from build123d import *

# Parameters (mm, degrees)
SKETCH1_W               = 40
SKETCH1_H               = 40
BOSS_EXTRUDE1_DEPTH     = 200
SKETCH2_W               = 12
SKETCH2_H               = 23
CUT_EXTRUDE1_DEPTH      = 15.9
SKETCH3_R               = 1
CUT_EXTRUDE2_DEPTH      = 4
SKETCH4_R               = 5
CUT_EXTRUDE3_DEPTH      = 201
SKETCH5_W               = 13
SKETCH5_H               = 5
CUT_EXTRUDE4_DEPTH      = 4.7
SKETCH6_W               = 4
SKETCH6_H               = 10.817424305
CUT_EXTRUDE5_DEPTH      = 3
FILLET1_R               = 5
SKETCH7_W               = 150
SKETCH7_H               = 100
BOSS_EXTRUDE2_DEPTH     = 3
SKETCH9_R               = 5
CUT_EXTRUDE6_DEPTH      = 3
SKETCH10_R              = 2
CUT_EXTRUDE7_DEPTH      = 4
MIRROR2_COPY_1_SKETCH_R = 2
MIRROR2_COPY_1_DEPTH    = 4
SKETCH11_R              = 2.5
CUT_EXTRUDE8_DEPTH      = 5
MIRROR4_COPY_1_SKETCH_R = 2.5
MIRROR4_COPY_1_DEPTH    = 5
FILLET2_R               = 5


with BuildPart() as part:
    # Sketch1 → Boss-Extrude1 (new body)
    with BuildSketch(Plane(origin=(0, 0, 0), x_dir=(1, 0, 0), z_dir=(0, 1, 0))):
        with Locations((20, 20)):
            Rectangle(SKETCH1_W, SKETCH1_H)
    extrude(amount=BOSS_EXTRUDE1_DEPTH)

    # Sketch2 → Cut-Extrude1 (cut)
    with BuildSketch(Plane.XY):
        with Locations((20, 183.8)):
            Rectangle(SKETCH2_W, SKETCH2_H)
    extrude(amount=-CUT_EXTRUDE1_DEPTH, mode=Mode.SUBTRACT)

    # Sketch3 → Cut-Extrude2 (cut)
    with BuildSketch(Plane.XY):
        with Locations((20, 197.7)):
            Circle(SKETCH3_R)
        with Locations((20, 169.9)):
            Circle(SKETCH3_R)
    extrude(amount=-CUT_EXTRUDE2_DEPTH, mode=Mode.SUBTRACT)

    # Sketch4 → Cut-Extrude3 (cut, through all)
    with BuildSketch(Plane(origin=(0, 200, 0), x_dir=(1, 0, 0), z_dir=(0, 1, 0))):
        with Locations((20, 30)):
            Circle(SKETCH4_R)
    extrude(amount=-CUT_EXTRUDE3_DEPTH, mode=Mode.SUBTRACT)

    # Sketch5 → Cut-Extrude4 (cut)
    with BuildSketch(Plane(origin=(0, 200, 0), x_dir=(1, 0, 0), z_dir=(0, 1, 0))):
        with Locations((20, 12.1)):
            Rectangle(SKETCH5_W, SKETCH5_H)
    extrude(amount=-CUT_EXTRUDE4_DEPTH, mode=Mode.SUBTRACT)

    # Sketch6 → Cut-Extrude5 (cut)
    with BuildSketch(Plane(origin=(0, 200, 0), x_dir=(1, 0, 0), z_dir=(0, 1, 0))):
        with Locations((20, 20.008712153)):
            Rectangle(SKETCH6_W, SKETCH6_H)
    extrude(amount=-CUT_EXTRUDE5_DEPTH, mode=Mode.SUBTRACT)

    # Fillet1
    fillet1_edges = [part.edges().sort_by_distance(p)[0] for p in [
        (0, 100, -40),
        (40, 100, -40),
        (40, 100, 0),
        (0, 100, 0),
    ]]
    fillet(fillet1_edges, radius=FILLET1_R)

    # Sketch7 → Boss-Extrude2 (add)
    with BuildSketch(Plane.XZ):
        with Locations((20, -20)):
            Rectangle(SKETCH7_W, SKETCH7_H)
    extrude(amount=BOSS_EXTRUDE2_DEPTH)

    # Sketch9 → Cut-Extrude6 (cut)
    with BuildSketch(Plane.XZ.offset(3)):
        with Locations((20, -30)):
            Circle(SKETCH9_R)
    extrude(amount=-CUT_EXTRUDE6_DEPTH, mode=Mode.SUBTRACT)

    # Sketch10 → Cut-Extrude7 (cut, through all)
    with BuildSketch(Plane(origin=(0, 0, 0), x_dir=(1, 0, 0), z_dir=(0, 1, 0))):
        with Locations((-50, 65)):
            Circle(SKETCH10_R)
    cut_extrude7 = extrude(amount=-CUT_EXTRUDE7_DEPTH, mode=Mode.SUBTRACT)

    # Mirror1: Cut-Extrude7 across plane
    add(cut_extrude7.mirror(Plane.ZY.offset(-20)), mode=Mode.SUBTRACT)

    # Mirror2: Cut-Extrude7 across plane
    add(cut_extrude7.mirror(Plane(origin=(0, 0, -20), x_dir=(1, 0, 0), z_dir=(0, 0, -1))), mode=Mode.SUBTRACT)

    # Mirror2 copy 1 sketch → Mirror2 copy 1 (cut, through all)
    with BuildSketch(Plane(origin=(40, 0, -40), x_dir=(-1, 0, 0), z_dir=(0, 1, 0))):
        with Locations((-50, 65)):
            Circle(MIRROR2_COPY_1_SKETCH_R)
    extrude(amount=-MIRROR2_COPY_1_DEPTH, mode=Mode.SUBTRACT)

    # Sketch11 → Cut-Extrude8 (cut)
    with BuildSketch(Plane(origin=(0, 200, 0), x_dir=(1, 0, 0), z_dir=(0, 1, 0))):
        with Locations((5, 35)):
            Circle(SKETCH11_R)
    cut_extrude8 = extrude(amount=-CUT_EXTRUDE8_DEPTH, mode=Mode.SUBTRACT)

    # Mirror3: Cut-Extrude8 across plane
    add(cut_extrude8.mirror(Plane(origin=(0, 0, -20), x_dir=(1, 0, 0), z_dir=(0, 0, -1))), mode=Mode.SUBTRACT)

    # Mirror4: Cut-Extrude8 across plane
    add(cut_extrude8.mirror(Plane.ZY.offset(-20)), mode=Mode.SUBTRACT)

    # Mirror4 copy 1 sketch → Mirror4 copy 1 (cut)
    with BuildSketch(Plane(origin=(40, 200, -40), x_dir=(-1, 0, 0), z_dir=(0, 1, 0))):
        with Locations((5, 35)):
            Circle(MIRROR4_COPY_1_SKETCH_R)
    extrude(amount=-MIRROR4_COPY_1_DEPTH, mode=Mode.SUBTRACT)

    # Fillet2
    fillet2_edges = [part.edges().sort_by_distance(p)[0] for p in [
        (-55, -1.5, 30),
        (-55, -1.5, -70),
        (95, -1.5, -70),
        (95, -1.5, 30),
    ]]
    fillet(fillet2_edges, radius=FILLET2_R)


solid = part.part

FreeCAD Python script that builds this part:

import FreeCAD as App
import Part
import Sketcher


def edges_at(feature, points):
    """Names of the edges that pass closest to the given points."""
    edges = feature.Shape.Edges
    near = lambda p: min(range(len(edges)), key=lambda i: edges[i].distToShape(Part.Vertex(*p))[0])
    return sorted({f"Edge{near(p) + 1}" for p in points})


def add_polygon(sketch, points):
    """Adds a closed chain of lines whose ends are joined by coincident constraints."""
    first, n = sketch.GeometryCount, len(points)
    for a, b in zip(points, points[1:] + points[:1]):
        sketch.addGeometry(Part.LineSegment(App.Vector(*a, 0), App.Vector(*b, 0)), False)
    for i in range(n):
        sketch.addConstraint(Sketcher.Constraint("Coincident", first + i, 2, first + (i + 1) % n, 1))

doc = App.newDocument("Part")
params = doc.addObject("Spreadsheet::Sheet", "Params")
for row, (alias, value) in enumerate([
    ("sketch1_width", "40 mm"),
    ("pad1_length", "200 mm"),
    ("sketch2_width", "12 mm"),
    ("sketch2_height", "23 mm"),
    ("pocket1_length", "15.9 mm"),
    ("sketch3_diameter", "2 mm"),
    ("pocket2_length", "4 mm"),
    ("sketch4_diameter", "10 mm"),
    ("sketch5_width", "13 mm"),
    ("sketch5_height", "5 mm"),
    ("pocket4_length", "4.7 mm"),
    ("sketch6_width", "4 mm"),
    ("pocket5_length", "3 mm"),
    ("fillet_radius", "5 mm"),
    ("sketch7_width", "150 mm"),
    ("sketch7_height", "100 mm"),
    ("pad2_length", "3 mm"),
    ("sketch8_diameter", "10 mm"),
    ("pocket6_length", "3 mm"),
    ("sketch9_diameter", "4 mm"),
    ("sketch10_diameter", "4 mm"),
    ("sketch11_diameter", "5 mm"),
    ("pocket9_length", "5 mm"),
    ("sketch12_diameter", "5 mm"),
    ("pocket10_length", "5 mm"),
    ("fillet2_radius", "5 mm"),
], start=1):
    params.set(f"A{row}", alias)
    params.set(f"B{row}", "=" + value)
    params.setAlias(f"B{row}", alias)

body = doc.addObject("PartDesign::Body", "Body")

# Sketch on XZ plane
sketch1 = body.newObject("Sketcher::SketchObject", "Sketch")
sketch1.AttachmentSupport = (doc.getObject("XZ_Plane"), [""])
sketch1.MapMode = "FlatFace"
add_polygon(sketch1, [(0, -40), (0, 0), (40, 0), (40, -40)])  # lines 0-3
sketch1.addConstraint([
    Sketcher.Constraint("Vertical", 0),
    Sketcher.Constraint("Horizontal", 1),
    Sketcher.Constraint("Vertical", 2),
    Sketcher.Constraint("Horizontal", 3),
    Sketcher.Constraint("Coincident", 0, 2, -1, 1),
    Sketcher.Constraint("Equal", 3, 0),
    Sketcher.Constraint("DistanceX", 1, 1, 1, 2, 40.0),
])
sketch1.setExpression("Constraints[10]", "Params.sketch1_width")
pad1 = body.newObject("PartDesign::Pad", "Pad")
pad1.Profile = sketch1
pad1.setExpression("Length", "Params.pad1_length")
pad1.Reversed = True

# Sketch on XY plane
sketch2 = body.newObject("Sketcher::SketchObject", "Sketch001")
sketch2.AttachmentSupport = (doc.getObject("XY_Plane"), [""])
sketch2.MapMode = "FlatFace"
add_polygon(sketch2, [(14, 195.3), (14, 172.3), (26, 172.3), (26, 195.3)])  # lines 0-3
sketch2.addConstraint([
    Sketcher.Constraint("Vertical", 0),
    Sketcher.Constraint("Horizontal", 1),
    Sketcher.Constraint("Vertical", 2),
    Sketcher.Constraint("Horizontal", 3),
    Sketcher.Constraint("DistanceX", 1, 1, 1, 2, 12.0),
    Sketcher.Constraint("DistanceY", 0, 2, 0, 1, 23.0),
    Sketcher.Constraint("DistanceX", -1, 1, 0, 2, 14.0),
    Sketcher.Constraint("DistanceY", -1, 1, 0, 2, 172.3),
])
sketch2.setExpression("Constraints[8]", "Params.sketch2_width")
sketch2.setExpression("Constraints[9]", "Params.sketch2_height")
pocket1 = body.newObject("PartDesign::Pocket", "Pocket")
pocket1.Profile = sketch2
pocket1.setExpression("Length", "Params.pocket1_length")

# Sketch on XY plane
sketch3 = body.newObject("Sketcher::SketchObject", "Sketch002")
sketch3.AttachmentSupport = (doc.getObject("XY_Plane"), [""])
sketch3.MapMode = "FlatFace"
sketch3.addGeometry([
    Part.Circle(App.Vector(20, 197.7, 0), App.Vector(0, 0, 1), 1),
    Part.Circle(App.Vector(20, 169.9, 0), App.Vector(0, 0, 1), 1),
], False)
sketch3.addConstraint([
    Sketcher.Constraint("Equal", 0, 1),
    Sketcher.Constraint("Vertical", 0, 3, 1, 3),
    Sketcher.Constraint("Diameter", 0, 2.0),
    Sketcher.Constraint("DistanceX", -1, 1, 0, 3, 20.0),
    Sketcher.Constraint("DistanceY", -1, 1, 0, 3, 197.7),
    Sketcher.Constraint("DistanceY", -1, 1, 1, 3, 169.9),
])
sketch3.setExpression("Constraints[2]", "Params.sketch3_diameter")
pocket2 = body.newObject("PartDesign::Pocket", "Pocket001")
pocket2.Profile = sketch3
pocket2.setExpression("Length", "Params.pocket2_length")

# Sketch on XZ plane
sketch4 = body.newObject("Sketcher::SketchObject", "Sketch003")
sketch4.AttachmentSupport = (doc.getObject("XZ_Plane"), [""])
sketch4.MapMode = "FlatFace"
sketch4.AttachmentOffset = App.Placement(App.Vector(0, 0, -200), App.Rotation())
sketch4.addGeometry(Part.Circle(App.Vector(20, -30, 0), App.Vector(0, 0, 1), 5), False)
sketch4.addConstraint([
    Sketcher.Constraint("Diameter", 0, 10.0),
    Sketcher.Constraint("DistanceX", -1, 1, 0, 3, 20.0),
    Sketcher.Constraint("DistanceY", 0, 3, -1, 1, 30.0),
])
sketch4.setExpression("Constraints[0]", "Params.sketch4_diameter")
pocket3 = body.newObject("PartDesign::Pocket", "Pocket002")
pocket3.Profile = sketch4
pocket3.Type = "ThroughAll"
pocket3.Reversed = True

# Sketch on XZ plane
sketch5 = body.newObject("Sketcher::SketchObject", "Sketch004")
sketch5.AttachmentSupport = (doc.getObject("XZ_Plane"), [""])
sketch5.MapMode = "FlatFace"
sketch5.AttachmentOffset = App.Placement(App.Vector(0, 0, -200), App.Rotation())
add_polygon(sketch5, [(13.5, -14.6), (13.5, -9.6), (26.5, -9.6), (26.5, -14.6)])  # lines 0-3
sketch5.addConstraint([
    Sketcher.Constraint("Vertical", 0),
    Sketcher.Constraint("Horizontal", 1),
    Sketcher.Constraint("Vertical", 2),
    Sketcher.Constraint("Horizontal", 3),
    Sketcher.Constraint("DistanceX", 1, 1, 1, 2, 13.0),
    Sketcher.Constraint("DistanceY", 0, 1, 0, 2, 5.0),
    Sketcher.Constraint("DistanceX", -1, 1, 0, 2, 13.5),
    Sketcher.Constraint("DistanceY", 0, 2, -1, 1, 9.6),
])
sketch5.setExpression("Constraints[8]", "Params.sketch5_width")
sketch5.setExpression("Constraints[9]", "Params.sketch5_height")
pocket4 = body.newObject("PartDesign::Pocket", "Pocket003")
pocket4.Profile = sketch5
pocket4.setExpression("Length", "Params.pocket4_length")
pocket4.Reversed = True

# Sketch on XZ plane
sketch6 = body.newObject("Sketcher::SketchObject", "Sketch005")
sketch6.AttachmentSupport = (doc.getObject("XZ_Plane"), [""])
sketch6.MapMode = "FlatFace"
sketch6.AttachmentOffset = App.Placement(App.Vector(0, 0, -200), App.Rotation())
add_polygon(sketch6, [(18, -25.417424), (18, -14.6), (22, -14.6), (22, -25.417424)])  # lines 0-3
sketch6.addConstraint([
    Sketcher.Constraint("Vertical", 0),
    Sketcher.Constraint("Horizontal", 1),
    Sketcher.Constraint("Vertical", 2),
    Sketcher.Constraint("Horizontal", 3),
    Sketcher.Constraint("DistanceX", 1, 1, 1, 2, 4.0),
    Sketcher.Constraint("DistanceX", -1, 1, 0, 2, 18.0),
    Sketcher.Constraint("DistanceY", 0, 2, -1, 1, 14.6),
    Sketcher.Constraint("DistanceY", 0, 1, 0, 2, 10.817424),
])
sketch6.setExpression("Constraints[8]", "Params.sketch6_width")
pocket5 = body.newObject("PartDesign::Pocket", "Pocket004")
pocket5.Profile = sketch6
pocket5.setExpression("Length", "Params.pocket5_length")
pocket5.Reversed = True
doc.recompute()

fillet = body.newObject("PartDesign::Fillet", "Fillet")
fillet.Base = (pocket5, edges_at(pocket5, [
    (0, 100, -40),
    (40, 100, -40),
    (40, 100, 0),
    (0, 100, 0),
]))
fillet.setExpression("Radius", "Params.fillet_radius")

# Sketch on XZ plane
sketch7 = body.newObject("Sketcher::SketchObject", "Sketch006")
sketch7.AttachmentSupport = (doc.getObject("XZ_Plane"), [""])
sketch7.MapMode = "FlatFace"
add_polygon(sketch7, [(-55, 30), (-55, -70), (95, -70), (95, 30)])  # lines 0-3
sketch7.addConstraint([
    Sketcher.Constraint("Vertical", 0),
    Sketcher.Constraint("Horizontal", 1),
    Sketcher.Constraint("Vertical", 2),
    Sketcher.Constraint("Horizontal", 3),
    Sketcher.Constraint("DistanceX", 1, 1, 1, 2, 150.0),
    Sketcher.Constraint("DistanceY", 0, 2, 0, 1, 100.0),
    Sketcher.Constraint("DistanceX", 0, 2, -1, 1, 55.0),
    Sketcher.Constraint("DistanceY", 0, 2, -1, 1, 70.0),
])
sketch7.setExpression("Constraints[8]", "Params.sketch7_width")
sketch7.setExpression("Constraints[9]", "Params.sketch7_height")
pad2 = body.newObject("PartDesign::Pad", "Pad001")
pad2.Profile = sketch7
pad2.setExpression("Length", "Params.pad2_length")

# Sketch on XZ plane
sketch8 = body.newObject("Sketcher::SketchObject", "Sketch007")
sketch8.AttachmentSupport = (doc.getObject("XZ_Plane"), [""])
sketch8.MapMode = "FlatFace"
sketch8.AttachmentOffset = App.Placement(App.Vector(0, 0, 3), App.Rotation())
sketch8.addGeometry(Part.Circle(App.Vector(20, -30, 0), App.Vector(0, 0, 1), 5), False)
sketch8.addConstraint([
    Sketcher.Constraint("Diameter", 0, 10.0),
    Sketcher.Constraint("DistanceX", -1, 1, 0, 3, 20.0),
    Sketcher.Constraint("DistanceY", 0, 3, -1, 1, 30.0),
])
sketch8.setExpression("Constraints[0]", "Params.sketch8_diameter")
pocket6 = body.newObject("PartDesign::Pocket", "Pocket005")
pocket6.Profile = sketch8
pocket6.setExpression("Length", "Params.pocket6_length")

# Sketch on XZ plane
sketch9 = body.newObject("Sketcher::SketchObject", "Sketch008")
sketch9.AttachmentSupport = (doc.getObject("XZ_Plane"), [""])
sketch9.MapMode = "FlatFace"
sketch9.addGeometry(Part.Circle(App.Vector(-50, -65, 0), App.Vector(0, 0, 1), 2), False)
sketch9.addConstraint([
    Sketcher.Constraint("Diameter", 0, 4.0),
    Sketcher.Constraint("DistanceX", 0, 3, -1, 1, 50.0),
    Sketcher.Constraint("DistanceY", 0, 3, -1, 1, 65.0),
])
sketch9.setExpression("Constraints[0]", "Params.sketch9_diameter")
pocket7 = body.newObject("PartDesign::Pocket", "Pocket006")
pocket7.Profile = sketch9
pocket7.Type = "ThroughAll"
pocket7.Reversed = True
doc.recompute()

datumplane = body.newObject("PartDesign::Plane", "DatumPlane")
datumplane.AttachmentSupport = (doc.getObject("YZ_Plane"), [""])
datumplane.MapMode = "FlatFace"
datumplane.AttachmentOffset = App.Placement(App.Vector(0, 0, 20), App.Rotation())
mirrored = body.newObject("PartDesign::Mirrored", "Mirrored")
mirrored.Originals = [pocket7]
mirrored.MirrorPlane = (datumplane, [""])
body.Tip = mirrored
doc.recompute()

datumplane2 = body.newObject("PartDesign::Plane", "DatumPlane001")
datumplane2.AttachmentSupport = (doc.getObject("XY_Plane"), [""])
datumplane2.MapMode = "FlatFace"
datumplane2.AttachmentOffset = App.Placement(App.Vector(0, 0, -20), App.Rotation())
mirrored2 = body.newObject("PartDesign::Mirrored", "Mirrored001")
mirrored2.Originals = [pocket7]
mirrored2.MirrorPlane = (datumplane2, [""])
body.Tip = mirrored2

# Sketch on XZ plane
sketch10 = body.newObject("Sketcher::SketchObject", "Sketch009")
sketch10.AttachmentSupport = (doc.getObject("XZ_Plane"), [""])
sketch10.MapMode = "FlatFace"
sketch10.addGeometry(Part.Circle(App.Vector(90, 25, 0), App.Vector(0, 0, 1), 2), False)
sketch10.addConstraint([
    Sketcher.Constraint("Diameter", 0, 4.0),
    Sketcher.Constraint("DistanceX", -1, 1, 0, 3, 90.0),
    Sketcher.Constraint("DistanceY", -1, 1, 0, 3, 25.0),
])
sketch10.setExpression("Constraints[0]", "Params.sketch10_diameter")
pocket8 = body.newObject("PartDesign::Pocket", "Pocket007")
pocket8.Profile = sketch10
pocket8.Type = "ThroughAll"
pocket8.Reversed = True

# Sketch on XZ plane
sketch11 = body.newObject("Sketcher::SketchObject", "Sketch010")
sketch11.AttachmentSupport = (doc.getObject("XZ_Plane"), [""])
sketch11.MapMode = "FlatFace"
sketch11.AttachmentOffset = App.Placement(App.Vector(0, 0, -200), App.Rotation())
sketch11.addGeometry(Part.Circle(App.Vector(5, -35, 0), App.Vector(0, 0, 1), 2.5), False)
sketch11.addConstraint([
    Sketcher.Constraint("Diameter", 0, 5.0),
    Sketcher.Constraint("DistanceX", -1, 1, 0, 3, 5.0),
    Sketcher.Constraint("DistanceY", 0, 3, -1, 1, 35.0),
])
sketch11.setExpression("Constraints[0]", "Params.sketch11_diameter")
pocket9 = body.newObject("PartDesign::Pocket", "Pocket008")
pocket9.Profile = sketch11
pocket9.setExpression("Length", "Params.pocket9_length")
pocket9.Reversed = True
doc.recompute()

datumplane3 = body.newObject("PartDesign::Plane", "DatumPlane002")
datumplane3.AttachmentSupport = (doc.getObject("XY_Plane"), [""])
datumplane3.MapMode = "FlatFace"
datumplane3.AttachmentOffset = App.Placement(App.Vector(0, 0, -20), App.Rotation())
mirrored3 = body.newObject("PartDesign::Mirrored", "Mirrored002")
mirrored3.Originals = [pocket9]
mirrored3.MirrorPlane = (datumplane3, [""])
body.Tip = mirrored3
doc.recompute()

datumplane4 = body.newObject("PartDesign::Plane", "DatumPlane003")
datumplane4.AttachmentSupport = (doc.getObject("YZ_Plane"), [""])
datumplane4.MapMode = "FlatFace"
datumplane4.AttachmentOffset = App.Placement(App.Vector(0, 0, 20), App.Rotation())
mirrored4 = body.newObject("PartDesign::Mirrored", "Mirrored003")
mirrored4.Originals = [pocket9]
mirrored4.MirrorPlane = (datumplane4, [""])
body.Tip = mirrored4

# Sketch on XZ plane
sketch12 = body.newObject("Sketcher::SketchObject", "Sketch011")
sketch12.AttachmentSupport = (doc.getObject("XZ_Plane"), [""])
sketch12.MapMode = "FlatFace"
sketch12.AttachmentOffset = App.Placement(App.Vector(0, 0, -200), App.Rotation())
sketch12.addGeometry(Part.Circle(App.Vector(35, -5, 0), App.Vector(0, 0, 1), 2.5), False)
sketch12.addConstraint([
    Sketcher.Constraint("Diameter", 0, 5.0),
    Sketcher.Constraint("DistanceX", -1, 1, 0, 3, 35.0),
    Sketcher.Constraint("DistanceY", 0, 3, -1, 1, 5.0),
])
sketch12.setExpression("Constraints[0]", "Params.sketch12_diameter")
pocket10 = body.newObject("PartDesign::Pocket", "Pocket009")
pocket10.Profile = sketch12
pocket10.setExpression("Length", "Params.pocket10_length")
pocket10.Reversed = True
doc.recompute()

fillet2 = body.newObject("PartDesign::Fillet", "Fillet001")
fillet2.Base = (pocket10, edges_at(pocket10, [
    (-55, -1.5, 30),
    (-55, -1.5, -70),
    (95, -1.5, -70),
    (95, -1.5, 30),
]))
fillet2.setExpression("Radius", "Params.fillet2_radius")

doc.recompute()
